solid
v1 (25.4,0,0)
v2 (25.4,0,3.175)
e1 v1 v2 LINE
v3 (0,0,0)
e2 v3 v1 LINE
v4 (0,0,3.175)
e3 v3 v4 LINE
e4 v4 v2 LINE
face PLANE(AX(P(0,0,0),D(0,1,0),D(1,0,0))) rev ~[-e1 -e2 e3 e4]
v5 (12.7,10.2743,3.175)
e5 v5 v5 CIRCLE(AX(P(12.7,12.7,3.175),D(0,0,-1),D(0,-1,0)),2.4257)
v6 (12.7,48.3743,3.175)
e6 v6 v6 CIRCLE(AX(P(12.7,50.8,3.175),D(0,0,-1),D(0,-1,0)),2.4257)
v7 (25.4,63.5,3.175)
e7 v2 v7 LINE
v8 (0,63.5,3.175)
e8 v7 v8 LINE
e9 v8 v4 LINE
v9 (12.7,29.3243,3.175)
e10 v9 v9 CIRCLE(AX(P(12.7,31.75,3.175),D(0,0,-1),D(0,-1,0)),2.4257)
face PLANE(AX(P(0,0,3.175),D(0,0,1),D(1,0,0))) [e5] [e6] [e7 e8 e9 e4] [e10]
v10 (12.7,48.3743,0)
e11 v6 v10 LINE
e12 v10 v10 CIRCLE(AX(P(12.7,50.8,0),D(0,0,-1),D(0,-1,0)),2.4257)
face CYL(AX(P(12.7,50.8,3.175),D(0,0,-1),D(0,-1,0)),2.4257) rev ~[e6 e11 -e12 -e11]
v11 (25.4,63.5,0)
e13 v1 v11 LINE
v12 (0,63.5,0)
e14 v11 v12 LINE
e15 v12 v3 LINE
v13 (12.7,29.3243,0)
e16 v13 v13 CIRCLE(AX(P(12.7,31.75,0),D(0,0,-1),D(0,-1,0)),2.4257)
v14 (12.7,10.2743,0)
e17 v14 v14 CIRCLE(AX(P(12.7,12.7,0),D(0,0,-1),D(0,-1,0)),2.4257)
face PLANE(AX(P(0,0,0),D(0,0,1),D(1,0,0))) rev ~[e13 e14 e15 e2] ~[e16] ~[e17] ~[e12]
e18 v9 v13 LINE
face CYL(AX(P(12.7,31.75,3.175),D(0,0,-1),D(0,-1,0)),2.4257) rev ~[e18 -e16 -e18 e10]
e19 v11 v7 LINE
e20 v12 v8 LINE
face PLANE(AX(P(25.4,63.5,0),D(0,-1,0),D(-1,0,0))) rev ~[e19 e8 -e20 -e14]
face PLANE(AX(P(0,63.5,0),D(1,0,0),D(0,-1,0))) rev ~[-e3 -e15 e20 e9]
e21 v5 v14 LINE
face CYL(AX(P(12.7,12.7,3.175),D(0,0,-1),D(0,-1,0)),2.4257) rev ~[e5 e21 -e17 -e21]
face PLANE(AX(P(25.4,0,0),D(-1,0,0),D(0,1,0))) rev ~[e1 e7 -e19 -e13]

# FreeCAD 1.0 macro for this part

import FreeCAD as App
import Part
import Sketcher
from FreeCAD import Vector
Q = App.Units.Quantity

doc = App.newDocument("Part")
body = doc.addObject("PartDesign::Body", "Body")

# Sketch on XY plane
sketch1 = body.newObject("Sketcher::SketchObject", "Sketch")
sketch1.AttachmentSupport = (doc.getObject("XY_Plane"), [""])
sketch1.MapMode = "FlatFace"
sketch1.addGeometry([
    Part.LineSegment(Vector(0, 64, 0), Vector(0, 0, 0)),
    Part.LineSegment(Vector(0, 0, 0), Vector(25, 0, 0)),
    Part.LineSegment(Vector(25, 0, 0), Vector(25, 64, 0)),
    Part.LineSegment(Vector(25, 64, 0), Vector(0, 64, 0)),
], False)
sketch1.addConstraint([
    Sketcher.Constraint("Coincident", 0, 2, 1, 1),
    Sketcher.Constraint("Coincident", 1, 2, 2, 1),
    Sketcher.Constraint("Coincident", 2, 2, 3, 1),
    Sketcher.Constraint("Coincident", 3, 2, 0, 1),
    Sketcher.Constraint("Vertical", 0),
    Sketcher.Constraint("Horizontal", 1),
    Sketcher.Constraint("Vertical", 2),
    Sketcher.Constraint("Horizontal", 3),
    Sketcher.Constraint("Coincident", 0, 2, -1, 1),
    Sketcher.Constraint("DistanceX", 1, 1, 1, 2, Q("1 in")),
    Sketcher.Constraint("DistanceY", 0, 2, 0, 1, Q("2.5 in")),
])
pad1 = body.newObject("PartDesign::Pad", "Pad")
pad1.Profile = sketch1
pad1.Length = Q("0.125 in")

# Sketch on XY plane
sketch2 = body.newObject("Sketcher::SketchObject", "Sketch001")
sketch2.AttachmentSupport = (doc.getObject("XY_Plane"), [""])
sketch2.MapMode = "FlatFace"
sketch2.AttachmentOffset = App.Placement(Vector(0, 0, 0.125 * 25.4), App.Rotation())
sketch2.addGeometry([
    Part.Circle(Vector(12.7, 12.7, 0), Vector(0, 0, 1), 2.4),
    Part.Circle(Vector(12.7, 31.8, 0), Vector(0, 0, 1), 2.4),
    Part.Circle(Vector(12.7, 50.8, 0), Vector(0, 0, 1), 2.4),
], False)
sketch2.addConstraint([
    Sketcher.Constraint("Equal", 0, 1),
    Sketcher.Constraint("Equal", 1, 2),
    Sketcher.Constraint("Vertical", 0, 3, 1, 3),
    Sketcher.Constraint("Vertical", 1, 3, 2, 3),
    Sketcher.Constraint("Diameter", 0, Q("0.191 in")),
    Sketcher.Constraint("DistanceY", -1, 1, 2, 3, Q("2 in")),
    Sketcher.Constraint("DistanceX", -1, 1, 0, 3, Q("0.5 in")),
    Sketcher.Constraint("DistanceY", -1, 1, 0, 3, Q("0.5 in")),
    Sketcher.Constraint("DistanceY", -1, 1, 1, 3, Q("1.25 in")),
])
doc.recompute()
hole = body.newObject("PartDesign::Hole", "Hole")
hole.Profile = sketch2
hole.ThreadType = "None"
hole.Diameter = Q("0.191 in")
hole.DepthType = "ThroughAll"

doc.recompute()
